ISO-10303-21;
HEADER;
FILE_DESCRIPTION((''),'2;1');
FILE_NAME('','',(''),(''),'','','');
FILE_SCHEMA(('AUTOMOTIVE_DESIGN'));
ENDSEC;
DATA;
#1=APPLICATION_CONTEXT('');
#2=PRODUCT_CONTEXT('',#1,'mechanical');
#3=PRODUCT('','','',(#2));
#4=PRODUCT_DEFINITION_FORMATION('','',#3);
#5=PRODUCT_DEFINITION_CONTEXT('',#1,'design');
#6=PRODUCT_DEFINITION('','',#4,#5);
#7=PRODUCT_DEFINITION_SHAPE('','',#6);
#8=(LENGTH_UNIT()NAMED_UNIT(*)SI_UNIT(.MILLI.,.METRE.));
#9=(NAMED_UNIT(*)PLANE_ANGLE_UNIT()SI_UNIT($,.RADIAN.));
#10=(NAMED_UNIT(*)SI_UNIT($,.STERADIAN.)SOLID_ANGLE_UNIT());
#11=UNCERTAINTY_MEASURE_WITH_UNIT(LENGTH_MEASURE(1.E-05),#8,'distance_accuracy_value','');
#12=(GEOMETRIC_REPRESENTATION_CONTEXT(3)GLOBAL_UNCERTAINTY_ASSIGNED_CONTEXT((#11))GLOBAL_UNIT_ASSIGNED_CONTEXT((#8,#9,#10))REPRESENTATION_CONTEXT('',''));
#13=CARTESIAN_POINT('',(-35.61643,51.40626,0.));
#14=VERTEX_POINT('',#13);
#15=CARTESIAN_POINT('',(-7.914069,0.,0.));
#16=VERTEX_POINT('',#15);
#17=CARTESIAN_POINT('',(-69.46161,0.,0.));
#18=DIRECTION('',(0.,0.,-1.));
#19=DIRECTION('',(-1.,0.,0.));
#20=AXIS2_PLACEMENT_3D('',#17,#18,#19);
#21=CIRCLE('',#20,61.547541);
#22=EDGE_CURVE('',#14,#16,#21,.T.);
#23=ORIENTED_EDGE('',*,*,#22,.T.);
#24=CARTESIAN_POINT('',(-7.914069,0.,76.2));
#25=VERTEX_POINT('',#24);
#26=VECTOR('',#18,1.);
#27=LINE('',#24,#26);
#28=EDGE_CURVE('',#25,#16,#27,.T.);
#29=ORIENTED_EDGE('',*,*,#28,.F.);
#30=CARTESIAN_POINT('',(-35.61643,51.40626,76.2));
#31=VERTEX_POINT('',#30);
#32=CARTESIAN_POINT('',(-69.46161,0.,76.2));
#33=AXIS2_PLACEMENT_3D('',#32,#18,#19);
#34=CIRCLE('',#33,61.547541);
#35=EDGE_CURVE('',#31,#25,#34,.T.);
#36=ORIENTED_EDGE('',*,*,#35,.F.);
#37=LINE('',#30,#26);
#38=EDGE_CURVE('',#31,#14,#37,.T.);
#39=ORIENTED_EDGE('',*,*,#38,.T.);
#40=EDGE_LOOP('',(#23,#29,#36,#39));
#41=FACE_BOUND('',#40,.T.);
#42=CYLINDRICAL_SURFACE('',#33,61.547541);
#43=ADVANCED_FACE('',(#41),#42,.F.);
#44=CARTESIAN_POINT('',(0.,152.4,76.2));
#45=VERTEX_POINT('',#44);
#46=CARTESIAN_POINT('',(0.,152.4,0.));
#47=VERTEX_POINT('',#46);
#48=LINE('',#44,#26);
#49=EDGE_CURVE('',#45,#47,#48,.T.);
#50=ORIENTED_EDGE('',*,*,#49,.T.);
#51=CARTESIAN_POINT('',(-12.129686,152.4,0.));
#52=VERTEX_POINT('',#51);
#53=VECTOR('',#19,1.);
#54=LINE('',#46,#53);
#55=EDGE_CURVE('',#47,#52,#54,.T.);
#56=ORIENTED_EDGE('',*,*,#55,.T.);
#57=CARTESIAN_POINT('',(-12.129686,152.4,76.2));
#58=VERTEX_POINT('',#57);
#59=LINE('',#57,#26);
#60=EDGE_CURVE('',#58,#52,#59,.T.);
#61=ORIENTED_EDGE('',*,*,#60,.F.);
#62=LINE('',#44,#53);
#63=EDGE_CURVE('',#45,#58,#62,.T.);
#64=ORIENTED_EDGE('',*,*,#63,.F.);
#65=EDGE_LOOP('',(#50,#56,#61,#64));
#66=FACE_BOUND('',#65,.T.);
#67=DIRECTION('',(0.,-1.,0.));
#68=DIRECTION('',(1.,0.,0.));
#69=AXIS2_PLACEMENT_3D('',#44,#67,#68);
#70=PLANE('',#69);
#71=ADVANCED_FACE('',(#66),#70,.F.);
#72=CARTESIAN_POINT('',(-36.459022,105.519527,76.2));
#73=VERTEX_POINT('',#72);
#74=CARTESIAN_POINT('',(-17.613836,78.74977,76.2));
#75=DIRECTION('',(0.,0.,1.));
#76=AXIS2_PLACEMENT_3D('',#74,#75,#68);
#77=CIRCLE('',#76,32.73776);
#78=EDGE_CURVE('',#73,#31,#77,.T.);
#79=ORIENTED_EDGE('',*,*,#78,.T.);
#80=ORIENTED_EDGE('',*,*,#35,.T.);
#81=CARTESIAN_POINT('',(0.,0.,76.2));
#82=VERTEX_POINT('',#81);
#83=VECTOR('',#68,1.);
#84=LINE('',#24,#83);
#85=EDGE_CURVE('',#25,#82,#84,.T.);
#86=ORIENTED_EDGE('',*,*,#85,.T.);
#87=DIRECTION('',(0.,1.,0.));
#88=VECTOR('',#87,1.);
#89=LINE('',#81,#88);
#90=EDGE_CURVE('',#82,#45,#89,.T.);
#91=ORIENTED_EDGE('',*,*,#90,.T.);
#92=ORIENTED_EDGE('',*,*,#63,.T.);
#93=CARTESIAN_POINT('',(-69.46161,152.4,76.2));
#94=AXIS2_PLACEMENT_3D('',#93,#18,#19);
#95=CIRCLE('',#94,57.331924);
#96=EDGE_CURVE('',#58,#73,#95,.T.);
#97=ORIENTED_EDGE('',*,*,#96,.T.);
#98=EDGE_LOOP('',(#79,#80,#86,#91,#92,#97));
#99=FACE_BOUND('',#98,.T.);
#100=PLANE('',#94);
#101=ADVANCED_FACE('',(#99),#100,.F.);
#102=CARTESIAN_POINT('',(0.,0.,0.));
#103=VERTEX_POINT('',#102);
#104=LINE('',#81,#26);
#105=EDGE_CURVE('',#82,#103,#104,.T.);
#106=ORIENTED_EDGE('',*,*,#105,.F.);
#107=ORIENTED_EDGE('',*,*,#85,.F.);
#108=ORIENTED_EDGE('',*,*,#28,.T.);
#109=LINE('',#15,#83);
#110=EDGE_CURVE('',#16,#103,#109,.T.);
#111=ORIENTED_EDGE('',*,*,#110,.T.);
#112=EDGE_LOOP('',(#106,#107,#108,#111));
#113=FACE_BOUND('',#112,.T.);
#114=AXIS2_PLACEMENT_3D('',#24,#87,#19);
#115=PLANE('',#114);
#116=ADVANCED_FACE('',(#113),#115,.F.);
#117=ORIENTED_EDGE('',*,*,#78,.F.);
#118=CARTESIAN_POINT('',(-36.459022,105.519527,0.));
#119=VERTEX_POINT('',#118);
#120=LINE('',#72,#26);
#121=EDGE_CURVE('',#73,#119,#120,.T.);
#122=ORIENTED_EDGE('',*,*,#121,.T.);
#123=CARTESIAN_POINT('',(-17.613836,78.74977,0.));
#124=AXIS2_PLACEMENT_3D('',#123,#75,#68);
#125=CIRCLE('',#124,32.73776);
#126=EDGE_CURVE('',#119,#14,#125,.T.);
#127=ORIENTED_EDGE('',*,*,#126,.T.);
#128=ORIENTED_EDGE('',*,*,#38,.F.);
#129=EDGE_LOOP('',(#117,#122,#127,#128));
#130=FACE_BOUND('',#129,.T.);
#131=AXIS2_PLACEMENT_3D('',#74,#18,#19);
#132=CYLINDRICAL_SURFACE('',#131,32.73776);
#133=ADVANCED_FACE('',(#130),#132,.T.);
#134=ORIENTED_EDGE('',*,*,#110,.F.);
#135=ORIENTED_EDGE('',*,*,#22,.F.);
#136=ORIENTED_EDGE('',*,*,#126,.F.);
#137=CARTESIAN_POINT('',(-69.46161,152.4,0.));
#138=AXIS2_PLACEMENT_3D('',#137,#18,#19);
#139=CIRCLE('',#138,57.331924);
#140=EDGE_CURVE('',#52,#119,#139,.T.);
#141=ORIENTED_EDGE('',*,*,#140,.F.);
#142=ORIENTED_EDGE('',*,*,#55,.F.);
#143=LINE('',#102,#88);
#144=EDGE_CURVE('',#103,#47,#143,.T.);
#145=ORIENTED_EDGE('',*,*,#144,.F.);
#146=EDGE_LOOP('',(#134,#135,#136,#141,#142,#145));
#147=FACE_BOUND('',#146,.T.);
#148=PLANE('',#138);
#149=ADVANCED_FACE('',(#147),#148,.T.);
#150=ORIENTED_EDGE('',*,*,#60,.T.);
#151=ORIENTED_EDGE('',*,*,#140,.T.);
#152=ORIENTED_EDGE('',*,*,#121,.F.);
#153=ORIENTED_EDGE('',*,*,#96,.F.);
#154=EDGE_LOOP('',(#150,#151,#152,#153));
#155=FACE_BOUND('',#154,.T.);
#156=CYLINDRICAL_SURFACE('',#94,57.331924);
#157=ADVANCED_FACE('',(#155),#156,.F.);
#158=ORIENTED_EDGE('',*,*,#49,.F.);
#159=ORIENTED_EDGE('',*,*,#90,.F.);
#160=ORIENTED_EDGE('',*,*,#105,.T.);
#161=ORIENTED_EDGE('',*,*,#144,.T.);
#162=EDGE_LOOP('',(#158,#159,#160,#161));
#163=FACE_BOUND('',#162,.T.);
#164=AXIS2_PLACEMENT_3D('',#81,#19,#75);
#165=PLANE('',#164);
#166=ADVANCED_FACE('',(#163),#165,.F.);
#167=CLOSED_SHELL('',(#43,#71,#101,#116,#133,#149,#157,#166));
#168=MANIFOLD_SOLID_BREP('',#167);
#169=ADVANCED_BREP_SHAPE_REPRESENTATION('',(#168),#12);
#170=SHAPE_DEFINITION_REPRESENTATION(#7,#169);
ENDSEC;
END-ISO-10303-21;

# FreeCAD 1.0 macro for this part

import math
import FreeCAD as App
import Part
import Sketcher

V = App.Vector
Q = App.Units.Quantity

doc = App.newDocument("Part")
params = doc.addObject("Spreadsheet::Sheet", "Params")
for row, (alias, value) in enumerate([
    ("sketch1_height", "6 in"),
    ("pad1_length", "3 in"),
], start=1):
    params.set(f"A{row}", alias)
    params.set(f"B{row}", "=" + value)
    params.setAlias(f"B{row}", alias)

body = doc.addObject("PartDesign::Body", "Body")

sketch1 = body.newObject("Sketcher::SketchObject", "Sketch")
sketch1.AttachmentSupport = (doc.getObject("XY_Plane"), [""])
sketch1.MapMode = "FlatFace"
sketch1.addGeometry([
    Part.LineSegment(V(0, 0, 0), V(0, 152, 0)),
    Part.LineSegment(V(0, 152, 0), V(-12, 152, 0)),
    Part.ArcOfCircle(Part.Circle(V(-69, 152, 0), V(0, 0, 1), 57), math.radians(-55), math.radians(0)),
    Part.ArcOfCircle(Part.Circle(V(-18, 79, 0), V(0, 0, 1), 33), math.radians(125), math.radians(237)),
    Part.ArcOfCircle(Part.Circle(V(-69, 0, 0), V(0, 0, 1), 62), math.radians(0), math.radians(57)),
    Part.LineSegment(V(-8, 0, 0), V(0, 0, 0)),
], False)
sketch1.addConstraint([
    Sketcher.Constraint("Coincident", 0, 2, 1, 1),
    Sketcher.Constraint("Coincident", 1, 2, 2, 2),
    Sketcher.Constraint("Tangent", 2, 1, 3, 1),
    Sketcher.Constraint("Tangent", 3, 2, 4, 2),
    Sketcher.Constraint("Coincident", 4, 1, 5, 1),
    Sketcher.Constraint("Coincident", 5, 2, 0, 1),
    Sketcher.Constraint("Vertical", 0),
    Sketcher.Constraint("Horizontal", 1),
    Sketcher.Constraint("Horizontal", 5),
    Sketcher.Constraint("Coincident", 5, 2, -1, 1),
    Sketcher.Constraint("PointOnObject", 4, 3, -1),
    Sketcher.Constraint("Horizontal", 2, 3, 0, 2),
    Sketcher.Constraint("Vertical", 2, 3, 4, 3),
    Sketcher.Constraint("DistanceY", 0, 1, 0, 2, Q("6 in")),
    Sketcher.Constraint("Radius", 3, 32.73776),
    Sketcher.Constraint("Radius", 4, 61.547541),
    Sketcher.Constraint("Radius", 2, 57.331924),
    Sketcher.Constraint("DistanceX", 5, 1, 5, 2, 7.914069),
])
sketch1.setExpression("Constraints[13]", "Params.sketch1_height")
pad1 = body.newObject("PartDesign::Pad", "Pad")
pad1.Profile = sketch1
pad1.setExpression("Length", "Params.pad1_length")

doc.recompute()
